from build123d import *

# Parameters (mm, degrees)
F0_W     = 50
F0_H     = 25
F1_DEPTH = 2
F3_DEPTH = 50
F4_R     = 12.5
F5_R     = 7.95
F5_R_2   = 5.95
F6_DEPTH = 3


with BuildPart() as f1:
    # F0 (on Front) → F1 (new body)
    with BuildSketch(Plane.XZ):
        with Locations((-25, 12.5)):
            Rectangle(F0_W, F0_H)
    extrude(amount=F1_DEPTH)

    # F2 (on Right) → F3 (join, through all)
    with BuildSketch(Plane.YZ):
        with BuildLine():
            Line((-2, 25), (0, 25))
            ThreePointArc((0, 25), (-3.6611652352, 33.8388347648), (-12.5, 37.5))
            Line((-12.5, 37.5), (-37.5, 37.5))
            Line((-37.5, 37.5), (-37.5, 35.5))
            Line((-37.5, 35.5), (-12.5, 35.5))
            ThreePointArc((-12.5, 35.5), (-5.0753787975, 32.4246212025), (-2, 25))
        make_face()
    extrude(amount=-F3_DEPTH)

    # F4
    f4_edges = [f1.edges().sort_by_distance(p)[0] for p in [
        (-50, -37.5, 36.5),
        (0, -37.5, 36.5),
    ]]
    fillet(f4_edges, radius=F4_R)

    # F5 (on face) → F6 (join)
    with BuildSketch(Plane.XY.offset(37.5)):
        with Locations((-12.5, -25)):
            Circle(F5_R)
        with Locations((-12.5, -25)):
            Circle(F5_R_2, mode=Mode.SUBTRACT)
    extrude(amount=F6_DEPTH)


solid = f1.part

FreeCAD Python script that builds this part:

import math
import FreeCAD as App
import Part
import Sketcher
from FreeCAD import Vector


def edges_at(feature, points):
    """Names of the edges that pass closest to the given points."""
    edges = feature.Shape.Edges
    near = lambda p: min(range(len(edges)), key=lambda i: edges[i].distToShape(Part.Vertex(*p))[0])
    return sorted({f"Edge{near(p) + 1}" for p in points})


def add_polygon(sketch, points):
    """Adds a closed chain of lines whose ends are joined by coincident constraints."""
    first, n = sketch.GeometryCount, len(points)
    for a, b in zip(points, points[1:] + points[:1]):
        sketch.addGeometry(Part.LineSegment(App.Vector(*a, 0), App.Vector(*b, 0)), False)
    for i in range(n):
        sketch.addConstraint(Sketcher.Constraint("Coincident", first + i, 2, first + (i + 1) % n, 1))

doc = App.newDocument("Part")
body = doc.addObject("PartDesign::Body", "Body")

sketch1 = body.newObject("Sketcher::SketchObject", "Sketch")
sketch1.AttachmentSupport = (doc.getObject("XZ_Plane"), [""])
sketch1.MapMode = "FlatFace"
add_polygon(sketch1, [(-50, 25), (-50, 0), (0, 0), (0, 25)])
sketch1.addConstraint([
    Sketcher.Constraint("Vertical", 0),
    Sketcher.Constraint("Horizontal", 1),
    Sketcher.Constraint("Vertical", 2),
    Sketcher.Constraint("Horizontal", 3),
    Sketcher.Constraint("Coincident", 1, 2, -1, 1),
    Sketcher.Constraint("DistanceX", 1, 1, 1, 2, 50.0),
    Sketcher.Constraint("DistanceY", 0, 2, 0, 1, 25.0),
])
pad1 = body.newObject("PartDesign::Pad", "Pad")
pad1.Profile = sketch1
pad1.Length = 2

sketch2 = body.newObject("Sketcher::SketchObject", "Sketch001")
sketch2.AttachmentSupport = (doc.getObject("YZ_Plane"), [""])
sketch2.MapMode = "FlatFace"
sketch2.addGeometry([
    Part.LineSegment(Vector(-2, 25, 0), Vector(0, 25, 0)),
    Part.ArcOfCircle(Part.Circle(Vector(-12.5, 25, 0), Vector(0, 0, 1), 12.5), math.radians(0), math.radians(90)),
    Part.LineSegment(Vector(-12.5, 37.5, 0), Vector(-37.5, 37.5, 0)),
    Part.LineSegment(Vector(-37.5, 37.5, 0), Vector(-37.5, 35.5, 0)),
    Part.LineSegment(Vector(-37.5, 35.5, 0), Vector(-12.5, 35.5, 0)),
    Part.ArcOfCircle(Part.Circle(Vector(-12.5, 25, 0), Vector(0, 0, 1), 10.5), math.radians(0), math.radians(90)),
], False)
sketch2.addConstraint([
    Sketcher.Constraint("Coincident", 0, 2, 1, 1),
    Sketcher.Constraint("Tangent", 1, 2, 2, 1),
    Sketcher.Constraint("Coincident", 2, 2, 3, 1),
    Sketcher.Constraint("Coincident", 3, 2, 4, 1),
    Sketcher.Constraint("Tangent", 4, 2, 5, 2),
    Sketcher.Constraint("Coincident", 5, 1, 0, 1),
    Sketcher.Constraint("Horizontal", 0),
    Sketcher.Constraint("Horizontal", 2),
    Sketcher.Constraint("Vertical", 3),
    Sketcher.Constraint("Horizontal", 4),
    Sketcher.Constraint("Coincident", 5, 3, 1, 3),
    Sketcher.Constraint("PointOnObject", 0, 2, -2),
    Sketcher.Constraint("Horizontal", 5, 3, 0, 2),
    Sketcher.Constraint("Radius", 1, 12.5),
    Sketcher.Constraint("Radius", 5, 10.5),
    Sketcher.Constraint("DistanceX", 2, 2, 2, 1, 25.0),
    Sketcher.Constraint("DistanceY", -1, 1, 1, 3, 25.0),
])
pad2 = body.newObject("PartDesign::Pad", "Pad001")
pad2.Profile = sketch2
pad2.Length = 50
pad2.Reversed = True
doc.recompute()

fillet = body.newObject("PartDesign::Fillet", "Fillet")
fillet.Base = (pad2, edges_at(pad2, [(-50, -37.5, 36.5), (0, -37.5, 36.5)]))
fillet.Radius = 12.5

sketch3 = body.newObject("Sketcher::SketchObject", "Sketch002")
sketch3.AttachmentSupport = (doc.getObject("XY_Plane"), [""])
sketch3.MapMode = "FlatFace"
sketch3.AttachmentOffset = App.Placement(Vector(0, 0, 37.5), App.Rotation())
sketch3.addGeometry([
    Part.Circle(Vector(-12, -25, 0), Vector(0, 0, 1), 8),
    Part.Circle(Vector(-12, -25, 0), Vector(0, 0, 1), 6),
], False)
sketch3.addConstraint([
    Sketcher.Constraint("Coincident", 1, 3, 0, 3),
    Sketcher.Constraint("Diameter", 0, 15.9),
    Sketcher.Constraint("Diameter", 1, 11.9),
    Sketcher.Constraint("DistanceY", 0, 3, -1, 1, 25.0),
    Sketcher.Constraint("DistanceX", 0, 3, -1, 1, 12.5),
])
pad3 = body.newObject("PartDesign::Pad", "Pad002")
pad3.Profile = sketch3
pad3.Length = 3

doc.recompute()
